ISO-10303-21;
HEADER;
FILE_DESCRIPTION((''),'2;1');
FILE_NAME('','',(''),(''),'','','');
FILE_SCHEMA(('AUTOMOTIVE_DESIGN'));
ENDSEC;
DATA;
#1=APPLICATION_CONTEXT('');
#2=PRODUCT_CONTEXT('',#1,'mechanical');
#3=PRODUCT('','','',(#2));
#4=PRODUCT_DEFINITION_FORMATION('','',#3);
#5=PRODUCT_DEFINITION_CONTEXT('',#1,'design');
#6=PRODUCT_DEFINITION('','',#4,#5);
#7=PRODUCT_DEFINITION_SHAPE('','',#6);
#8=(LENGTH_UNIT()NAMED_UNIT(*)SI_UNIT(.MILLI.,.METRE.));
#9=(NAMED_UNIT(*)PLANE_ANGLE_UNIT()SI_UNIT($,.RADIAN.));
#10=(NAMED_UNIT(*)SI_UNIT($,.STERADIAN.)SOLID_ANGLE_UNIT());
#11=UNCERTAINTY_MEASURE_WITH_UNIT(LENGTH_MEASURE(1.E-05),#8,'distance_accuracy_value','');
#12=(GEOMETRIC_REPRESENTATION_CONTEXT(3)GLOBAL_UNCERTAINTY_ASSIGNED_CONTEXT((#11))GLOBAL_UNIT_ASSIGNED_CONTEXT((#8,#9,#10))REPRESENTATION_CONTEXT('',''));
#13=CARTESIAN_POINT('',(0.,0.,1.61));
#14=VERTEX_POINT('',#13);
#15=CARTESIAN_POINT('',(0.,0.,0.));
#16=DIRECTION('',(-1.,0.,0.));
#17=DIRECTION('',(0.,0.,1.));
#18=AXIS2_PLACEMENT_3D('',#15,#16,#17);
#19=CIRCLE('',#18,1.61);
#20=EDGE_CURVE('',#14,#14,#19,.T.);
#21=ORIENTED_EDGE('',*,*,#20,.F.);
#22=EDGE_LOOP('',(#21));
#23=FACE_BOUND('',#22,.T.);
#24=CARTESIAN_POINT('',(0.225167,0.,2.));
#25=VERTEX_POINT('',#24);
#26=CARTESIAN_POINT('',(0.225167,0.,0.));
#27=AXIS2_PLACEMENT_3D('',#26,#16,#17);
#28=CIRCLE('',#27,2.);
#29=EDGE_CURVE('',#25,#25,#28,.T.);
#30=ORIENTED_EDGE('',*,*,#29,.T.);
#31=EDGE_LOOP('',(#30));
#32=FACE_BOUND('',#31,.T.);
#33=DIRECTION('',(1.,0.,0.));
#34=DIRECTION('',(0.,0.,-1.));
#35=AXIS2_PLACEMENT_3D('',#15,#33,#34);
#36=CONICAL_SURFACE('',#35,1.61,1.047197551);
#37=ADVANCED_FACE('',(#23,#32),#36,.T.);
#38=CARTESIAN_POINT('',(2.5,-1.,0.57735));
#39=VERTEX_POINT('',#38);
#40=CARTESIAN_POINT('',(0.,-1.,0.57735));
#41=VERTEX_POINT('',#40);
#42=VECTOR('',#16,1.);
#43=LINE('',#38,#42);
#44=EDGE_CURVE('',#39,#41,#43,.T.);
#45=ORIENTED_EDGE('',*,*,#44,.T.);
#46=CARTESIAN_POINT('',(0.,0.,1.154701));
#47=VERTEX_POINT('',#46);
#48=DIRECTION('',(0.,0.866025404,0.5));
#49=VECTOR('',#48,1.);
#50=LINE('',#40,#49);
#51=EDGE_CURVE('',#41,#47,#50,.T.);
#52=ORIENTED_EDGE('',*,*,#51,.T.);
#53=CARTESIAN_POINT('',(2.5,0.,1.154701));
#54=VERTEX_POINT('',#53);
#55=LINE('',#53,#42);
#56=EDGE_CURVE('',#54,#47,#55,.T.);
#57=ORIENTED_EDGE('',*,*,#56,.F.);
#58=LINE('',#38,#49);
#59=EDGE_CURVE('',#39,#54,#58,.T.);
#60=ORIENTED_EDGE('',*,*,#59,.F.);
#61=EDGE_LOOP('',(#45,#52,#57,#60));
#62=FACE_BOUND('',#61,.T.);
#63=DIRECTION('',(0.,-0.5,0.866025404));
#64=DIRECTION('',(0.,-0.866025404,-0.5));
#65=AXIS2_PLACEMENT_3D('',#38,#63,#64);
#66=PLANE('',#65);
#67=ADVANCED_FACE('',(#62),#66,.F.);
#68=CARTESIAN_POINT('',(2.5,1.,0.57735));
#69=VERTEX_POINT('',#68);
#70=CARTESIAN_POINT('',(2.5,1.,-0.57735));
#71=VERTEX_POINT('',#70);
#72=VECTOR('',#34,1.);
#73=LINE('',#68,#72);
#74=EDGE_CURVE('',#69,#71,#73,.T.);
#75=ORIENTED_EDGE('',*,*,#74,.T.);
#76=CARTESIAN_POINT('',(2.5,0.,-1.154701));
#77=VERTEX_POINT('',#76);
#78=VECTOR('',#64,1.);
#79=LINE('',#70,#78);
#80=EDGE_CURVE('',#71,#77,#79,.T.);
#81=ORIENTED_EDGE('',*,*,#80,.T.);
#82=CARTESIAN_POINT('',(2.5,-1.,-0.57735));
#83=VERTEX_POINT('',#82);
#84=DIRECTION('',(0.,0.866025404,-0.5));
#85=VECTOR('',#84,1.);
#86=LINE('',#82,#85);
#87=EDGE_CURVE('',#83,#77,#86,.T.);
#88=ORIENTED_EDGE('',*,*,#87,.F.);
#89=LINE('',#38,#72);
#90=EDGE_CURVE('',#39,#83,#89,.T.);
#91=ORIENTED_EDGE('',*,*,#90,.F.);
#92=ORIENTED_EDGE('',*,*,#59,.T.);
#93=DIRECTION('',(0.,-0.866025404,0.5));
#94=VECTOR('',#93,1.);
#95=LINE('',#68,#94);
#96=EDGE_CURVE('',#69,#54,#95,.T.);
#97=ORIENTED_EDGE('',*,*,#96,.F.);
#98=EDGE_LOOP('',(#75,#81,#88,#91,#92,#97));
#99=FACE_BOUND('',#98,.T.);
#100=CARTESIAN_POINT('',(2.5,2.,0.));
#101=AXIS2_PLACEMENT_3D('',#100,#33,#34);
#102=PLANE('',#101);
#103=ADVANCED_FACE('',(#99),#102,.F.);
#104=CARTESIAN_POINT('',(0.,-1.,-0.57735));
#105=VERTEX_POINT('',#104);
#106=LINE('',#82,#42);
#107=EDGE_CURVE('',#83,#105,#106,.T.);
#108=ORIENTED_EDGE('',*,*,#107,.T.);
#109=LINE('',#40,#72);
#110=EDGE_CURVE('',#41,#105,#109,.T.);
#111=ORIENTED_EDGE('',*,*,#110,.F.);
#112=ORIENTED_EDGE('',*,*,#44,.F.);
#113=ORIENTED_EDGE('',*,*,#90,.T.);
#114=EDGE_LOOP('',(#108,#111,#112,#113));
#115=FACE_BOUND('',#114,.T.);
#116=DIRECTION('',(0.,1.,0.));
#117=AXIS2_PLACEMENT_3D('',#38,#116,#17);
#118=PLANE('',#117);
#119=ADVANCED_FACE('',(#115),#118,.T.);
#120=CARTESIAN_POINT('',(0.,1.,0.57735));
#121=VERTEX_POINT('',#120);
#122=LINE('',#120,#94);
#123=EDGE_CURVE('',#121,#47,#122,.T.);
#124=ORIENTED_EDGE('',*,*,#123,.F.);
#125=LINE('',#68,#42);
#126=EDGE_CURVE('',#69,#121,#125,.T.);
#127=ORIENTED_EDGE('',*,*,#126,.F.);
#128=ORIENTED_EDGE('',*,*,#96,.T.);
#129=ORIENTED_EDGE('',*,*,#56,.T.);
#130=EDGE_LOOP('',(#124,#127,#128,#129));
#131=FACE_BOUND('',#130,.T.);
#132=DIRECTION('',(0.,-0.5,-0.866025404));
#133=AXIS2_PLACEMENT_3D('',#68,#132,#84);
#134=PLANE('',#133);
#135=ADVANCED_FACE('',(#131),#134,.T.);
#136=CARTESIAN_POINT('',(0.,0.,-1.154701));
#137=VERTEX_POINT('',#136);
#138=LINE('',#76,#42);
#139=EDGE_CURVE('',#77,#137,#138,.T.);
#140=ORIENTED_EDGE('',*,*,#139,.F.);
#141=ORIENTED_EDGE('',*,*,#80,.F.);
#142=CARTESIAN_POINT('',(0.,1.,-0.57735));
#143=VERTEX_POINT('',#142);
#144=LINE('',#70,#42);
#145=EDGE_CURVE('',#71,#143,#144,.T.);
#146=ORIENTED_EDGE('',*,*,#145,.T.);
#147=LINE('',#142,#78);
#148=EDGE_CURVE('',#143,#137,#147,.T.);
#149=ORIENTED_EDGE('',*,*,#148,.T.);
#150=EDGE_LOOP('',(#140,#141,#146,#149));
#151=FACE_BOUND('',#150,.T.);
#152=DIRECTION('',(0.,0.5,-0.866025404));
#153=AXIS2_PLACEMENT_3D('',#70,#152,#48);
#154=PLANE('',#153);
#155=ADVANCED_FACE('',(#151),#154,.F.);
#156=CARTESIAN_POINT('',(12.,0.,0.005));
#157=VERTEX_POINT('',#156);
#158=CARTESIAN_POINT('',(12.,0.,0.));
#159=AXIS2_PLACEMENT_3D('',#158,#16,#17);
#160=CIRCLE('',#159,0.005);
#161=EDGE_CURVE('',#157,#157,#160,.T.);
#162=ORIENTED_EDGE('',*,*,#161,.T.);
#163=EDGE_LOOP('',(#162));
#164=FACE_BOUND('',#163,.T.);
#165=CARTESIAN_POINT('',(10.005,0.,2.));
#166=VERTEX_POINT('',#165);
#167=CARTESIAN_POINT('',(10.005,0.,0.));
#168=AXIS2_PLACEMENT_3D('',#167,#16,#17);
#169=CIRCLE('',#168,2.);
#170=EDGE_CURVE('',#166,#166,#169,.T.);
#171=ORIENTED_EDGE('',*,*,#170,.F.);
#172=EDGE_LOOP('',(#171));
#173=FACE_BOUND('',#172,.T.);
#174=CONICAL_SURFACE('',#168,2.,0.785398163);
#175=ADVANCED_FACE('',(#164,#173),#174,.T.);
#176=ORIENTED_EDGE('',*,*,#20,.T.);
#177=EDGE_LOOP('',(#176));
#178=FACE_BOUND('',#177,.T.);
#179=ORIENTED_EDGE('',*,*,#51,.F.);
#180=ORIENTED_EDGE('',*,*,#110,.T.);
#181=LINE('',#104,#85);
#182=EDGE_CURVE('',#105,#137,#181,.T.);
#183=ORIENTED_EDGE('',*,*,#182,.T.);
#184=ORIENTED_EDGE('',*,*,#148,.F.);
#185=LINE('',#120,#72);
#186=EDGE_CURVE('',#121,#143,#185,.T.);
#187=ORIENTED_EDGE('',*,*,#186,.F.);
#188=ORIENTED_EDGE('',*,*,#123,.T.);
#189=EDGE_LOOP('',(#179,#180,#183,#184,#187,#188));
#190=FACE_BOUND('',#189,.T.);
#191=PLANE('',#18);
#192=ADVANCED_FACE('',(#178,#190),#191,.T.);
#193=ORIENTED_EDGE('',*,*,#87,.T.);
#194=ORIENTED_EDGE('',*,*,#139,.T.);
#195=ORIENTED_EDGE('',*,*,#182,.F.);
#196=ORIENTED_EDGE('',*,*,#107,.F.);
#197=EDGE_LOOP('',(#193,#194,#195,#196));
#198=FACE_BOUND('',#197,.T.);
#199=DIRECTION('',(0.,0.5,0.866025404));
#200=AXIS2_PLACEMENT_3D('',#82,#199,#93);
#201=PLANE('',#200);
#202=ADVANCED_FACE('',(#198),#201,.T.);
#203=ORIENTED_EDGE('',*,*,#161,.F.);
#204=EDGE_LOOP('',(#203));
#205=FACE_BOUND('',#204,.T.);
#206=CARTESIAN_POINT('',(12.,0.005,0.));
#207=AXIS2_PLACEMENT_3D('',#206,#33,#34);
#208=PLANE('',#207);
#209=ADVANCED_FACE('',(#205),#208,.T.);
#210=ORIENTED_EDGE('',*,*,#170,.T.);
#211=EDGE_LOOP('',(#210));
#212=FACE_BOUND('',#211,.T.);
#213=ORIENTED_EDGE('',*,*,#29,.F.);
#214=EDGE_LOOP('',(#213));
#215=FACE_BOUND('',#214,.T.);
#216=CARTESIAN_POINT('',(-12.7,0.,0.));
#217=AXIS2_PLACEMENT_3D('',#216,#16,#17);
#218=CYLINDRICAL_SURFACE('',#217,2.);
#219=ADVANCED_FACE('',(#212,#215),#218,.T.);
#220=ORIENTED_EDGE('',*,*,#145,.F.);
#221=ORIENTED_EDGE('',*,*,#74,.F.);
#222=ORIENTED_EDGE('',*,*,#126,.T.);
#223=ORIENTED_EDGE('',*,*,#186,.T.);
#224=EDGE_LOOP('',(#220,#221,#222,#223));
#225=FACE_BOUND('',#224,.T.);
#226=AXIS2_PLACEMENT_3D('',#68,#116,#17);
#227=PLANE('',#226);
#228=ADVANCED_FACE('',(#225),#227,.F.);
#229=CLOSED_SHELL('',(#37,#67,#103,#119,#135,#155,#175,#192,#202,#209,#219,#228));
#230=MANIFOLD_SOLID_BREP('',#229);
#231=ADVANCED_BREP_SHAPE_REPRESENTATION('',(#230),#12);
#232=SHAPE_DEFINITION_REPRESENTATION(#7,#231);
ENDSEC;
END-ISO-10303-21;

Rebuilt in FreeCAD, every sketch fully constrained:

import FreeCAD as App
import Part
import Sketcher

V = App.Vector
Q = App.Units.Quantity

doc = App.newDocument("Part")
params = doc.addObject("Spreadsheet::Sheet", "Params")
for row, (alias, value) in enumerate([
    ("sketch1_width", "12 mm"),
    ("sketch1_height", "1.61 mm"),
    ("revolution_angle", "360 deg"),
    ("pocket1_length", "2.5 mm"),
], start=1):
    params.set(f"A{row}", alias)
    params.set(f"B{row}", "=" + value)
    params.setAlias(f"B{row}", alias)

body = doc.addObject("PartDesign::Body", "Body")

# Sketch on XY plane
sketch1 = doc.addObject("Sketcher::SketchObject", "Sketch")
body.addObject(sketch1)
sketch1.AttachmentSupport = (doc.XY_Plane, [""])
sketch1.MapMode = "FlatFace"
sketch1.addGeometry(Part.LineSegment(V(0, 1.61, 0), V(0, 0, 0)), False)
sketch1.addGeometry(Part.LineSegment(V(0, 0, 0), V(12, 0, 0)), False)
sketch1.addGeometry(Part.LineSegment(V(12, 0, 0), V(12, 0.005, 0)), False)
sketch1.addGeometry(Part.LineSegment(V(12, 0.005, 0), V(10.005, 2, 0)), False)
sketch1.addGeometry(Part.LineSegment(V(10.005, 2, 0), V(0.225, 2, 0)), False)
sketch1.addGeometry(Part.LineSegment(V(0.225, 2, 0), V(0, 1.61, 0)), False)
sketch1.addConstraint(Sketcher.Constraint("Coincident", 0, 2, 1, 1))
sketch1.addConstraint(Sketcher.Constraint("Coincident", 1, 2, 2, 1))
sketch1.addConstraint(Sketcher.Constraint("Coincident", 2, 2, 3, 1))
sketch1.addConstraint(Sketcher.Constraint("Coincident", 3, 2, 4, 1))
sketch1.addConstraint(Sketcher.Constraint("Coincident", 4, 2, 5, 1))
sketch1.addConstraint(Sketcher.Constraint("Coincident", 5, 2, 0, 1))
sketch1.addConstraint(Sketcher.Constraint("Vertical", 0))
sketch1.addConstraint(Sketcher.Constraint("Horizontal", 1))
sketch1.addConstraint(Sketcher.Constraint("Vertical", 2))
sketch1.addConstraint(Sketcher.Constraint("Horizontal", 4))
sketch1.addConstraint(Sketcher.Constraint("Coincident", 0, 2, -1, 1))
sketch1.addConstraint(Sketcher.Constraint("DistanceX", 1, 1, 1, 2, Q("12 mm")))
sketch1.addConstraint(Sketcher.Constraint("Angle", 3, Q("135 deg")))
sketch1.addConstraint(Sketcher.Constraint("Angle", 5, Q("-120 deg")))
sketch1.addConstraint(Sketcher.Constraint("DistanceY", -1, 1, 3, 2, Q("2 mm")))
sketch1.addConstraint(Sketcher.Constraint("DistanceY", 0, 2, 0, 1, Q("1.61 mm")))
sketch1.addConstraint(Sketcher.Constraint("DistanceY", 2, 1, 2, 2, Q("0.005 mm")))
sketch1.setExpression("Constraints[11]", "Params.sketch1_width")
sketch1.setExpression("Constraints[15]", "Params.sketch1_height")
revolution = doc.addObject("PartDesign::Revolution", "Revolution")
body.addObject(revolution)
revolution.Profile = sketch1
revolution.ReferenceAxis = (sketch1, ["H_Axis"])
revolution.setExpression("Angle", "Params.revolution_angle")

# Sketch on YZ plane
sketch2 = doc.addObject("Sketcher::SketchObject", "Sketch001")
body.addObject(sketch2)
sketch2.AttachmentSupport = (doc.YZ_Plane, [""])
sketch2.MapMode = "FlatFace"
sketch2.addGeometry(Part.LineSegment(V(1, 0.6, 0), V(1, -0.6, 0)), False)
sketch2.addGeometry(Part.LineSegment(V(1, -0.6, 0), V(0, -1.2, 0)), False)
sketch2.addGeometry(Part.LineSegment(V(0, -1.2, 0), V(-1, -0.6, 0)), False)
sketch2.addGeometry(Part.LineSegment(V(-1, -0.6, 0), V(-1, 0.6, 0)), False)
sketch2.addGeometry(Part.LineSegment(V(-1, 0.6, 0), V(0, 1.2, 0)), False)
sketch2.addGeometry(Part.LineSegment(V(0, 1.2, 0), V(1, 0.6, 0)), False)
sketch2.addConstraint(Sketcher.Constraint("Coincident", 0, 2, 1, 1))
sketch2.addConstraint(Sketcher.Constraint("Coincident", 1, 2, 2, 1))
sketch2.addConstraint(Sketcher.Constraint("Coincident", 2, 2, 3, 1))
sketch2.addConstraint(Sketcher.Constraint("Coincident", 3, 2, 4, 1))
sketch2.addConstraint(Sketcher.Constraint("Coincident", 4, 2, 5, 1))
sketch2.addConstraint(Sketcher.Constraint("Coincident", 5, 2, 0, 1))
sketch2.addConstraint(Sketcher.Constraint("Vertical", 0))
sketch2.addConstraint(Sketcher.Constraint("Vertical", 3))
sketch2.addConstraint(Sketcher.Constraint("Symmetric", 0, 2, 3, 2, -1, 1))
sketch2.addConstraint(Sketcher.Constraint("Symmetric", 1, 2, 4, 2, -1, 1))
sketch2.addConstraint(Sketcher.Constraint("PointOnObject", 1, 2, -2))
sketch2.addConstraint(Sketcher.Constraint("Parallel", 2, 5))
sketch2.addConstraint(Sketcher.Constraint("Horizontal", 0, 2, 2, 2))
sketch2.addConstraint(Sketcher.Constraint("Angle", 1, Q("-150 deg")))
sketch2.addConstraint(Sketcher.Constraint("DistanceX", -1, 1, 0, 2, Q("1 mm")))
sketch2.addConstraint(Sketcher.Constraint("DistanceY", 0, 2, 0, 1, Q("1.154701 mm")))
pocket1 = doc.addObject("PartDesign::Pocket", "Pocket")
body.addObject(pocket1)
pocket1.Profile = sketch2
pocket1.setExpression("Length", "Params.pocket1_length")
pocket1.Reversed = True

doc.recompute()
